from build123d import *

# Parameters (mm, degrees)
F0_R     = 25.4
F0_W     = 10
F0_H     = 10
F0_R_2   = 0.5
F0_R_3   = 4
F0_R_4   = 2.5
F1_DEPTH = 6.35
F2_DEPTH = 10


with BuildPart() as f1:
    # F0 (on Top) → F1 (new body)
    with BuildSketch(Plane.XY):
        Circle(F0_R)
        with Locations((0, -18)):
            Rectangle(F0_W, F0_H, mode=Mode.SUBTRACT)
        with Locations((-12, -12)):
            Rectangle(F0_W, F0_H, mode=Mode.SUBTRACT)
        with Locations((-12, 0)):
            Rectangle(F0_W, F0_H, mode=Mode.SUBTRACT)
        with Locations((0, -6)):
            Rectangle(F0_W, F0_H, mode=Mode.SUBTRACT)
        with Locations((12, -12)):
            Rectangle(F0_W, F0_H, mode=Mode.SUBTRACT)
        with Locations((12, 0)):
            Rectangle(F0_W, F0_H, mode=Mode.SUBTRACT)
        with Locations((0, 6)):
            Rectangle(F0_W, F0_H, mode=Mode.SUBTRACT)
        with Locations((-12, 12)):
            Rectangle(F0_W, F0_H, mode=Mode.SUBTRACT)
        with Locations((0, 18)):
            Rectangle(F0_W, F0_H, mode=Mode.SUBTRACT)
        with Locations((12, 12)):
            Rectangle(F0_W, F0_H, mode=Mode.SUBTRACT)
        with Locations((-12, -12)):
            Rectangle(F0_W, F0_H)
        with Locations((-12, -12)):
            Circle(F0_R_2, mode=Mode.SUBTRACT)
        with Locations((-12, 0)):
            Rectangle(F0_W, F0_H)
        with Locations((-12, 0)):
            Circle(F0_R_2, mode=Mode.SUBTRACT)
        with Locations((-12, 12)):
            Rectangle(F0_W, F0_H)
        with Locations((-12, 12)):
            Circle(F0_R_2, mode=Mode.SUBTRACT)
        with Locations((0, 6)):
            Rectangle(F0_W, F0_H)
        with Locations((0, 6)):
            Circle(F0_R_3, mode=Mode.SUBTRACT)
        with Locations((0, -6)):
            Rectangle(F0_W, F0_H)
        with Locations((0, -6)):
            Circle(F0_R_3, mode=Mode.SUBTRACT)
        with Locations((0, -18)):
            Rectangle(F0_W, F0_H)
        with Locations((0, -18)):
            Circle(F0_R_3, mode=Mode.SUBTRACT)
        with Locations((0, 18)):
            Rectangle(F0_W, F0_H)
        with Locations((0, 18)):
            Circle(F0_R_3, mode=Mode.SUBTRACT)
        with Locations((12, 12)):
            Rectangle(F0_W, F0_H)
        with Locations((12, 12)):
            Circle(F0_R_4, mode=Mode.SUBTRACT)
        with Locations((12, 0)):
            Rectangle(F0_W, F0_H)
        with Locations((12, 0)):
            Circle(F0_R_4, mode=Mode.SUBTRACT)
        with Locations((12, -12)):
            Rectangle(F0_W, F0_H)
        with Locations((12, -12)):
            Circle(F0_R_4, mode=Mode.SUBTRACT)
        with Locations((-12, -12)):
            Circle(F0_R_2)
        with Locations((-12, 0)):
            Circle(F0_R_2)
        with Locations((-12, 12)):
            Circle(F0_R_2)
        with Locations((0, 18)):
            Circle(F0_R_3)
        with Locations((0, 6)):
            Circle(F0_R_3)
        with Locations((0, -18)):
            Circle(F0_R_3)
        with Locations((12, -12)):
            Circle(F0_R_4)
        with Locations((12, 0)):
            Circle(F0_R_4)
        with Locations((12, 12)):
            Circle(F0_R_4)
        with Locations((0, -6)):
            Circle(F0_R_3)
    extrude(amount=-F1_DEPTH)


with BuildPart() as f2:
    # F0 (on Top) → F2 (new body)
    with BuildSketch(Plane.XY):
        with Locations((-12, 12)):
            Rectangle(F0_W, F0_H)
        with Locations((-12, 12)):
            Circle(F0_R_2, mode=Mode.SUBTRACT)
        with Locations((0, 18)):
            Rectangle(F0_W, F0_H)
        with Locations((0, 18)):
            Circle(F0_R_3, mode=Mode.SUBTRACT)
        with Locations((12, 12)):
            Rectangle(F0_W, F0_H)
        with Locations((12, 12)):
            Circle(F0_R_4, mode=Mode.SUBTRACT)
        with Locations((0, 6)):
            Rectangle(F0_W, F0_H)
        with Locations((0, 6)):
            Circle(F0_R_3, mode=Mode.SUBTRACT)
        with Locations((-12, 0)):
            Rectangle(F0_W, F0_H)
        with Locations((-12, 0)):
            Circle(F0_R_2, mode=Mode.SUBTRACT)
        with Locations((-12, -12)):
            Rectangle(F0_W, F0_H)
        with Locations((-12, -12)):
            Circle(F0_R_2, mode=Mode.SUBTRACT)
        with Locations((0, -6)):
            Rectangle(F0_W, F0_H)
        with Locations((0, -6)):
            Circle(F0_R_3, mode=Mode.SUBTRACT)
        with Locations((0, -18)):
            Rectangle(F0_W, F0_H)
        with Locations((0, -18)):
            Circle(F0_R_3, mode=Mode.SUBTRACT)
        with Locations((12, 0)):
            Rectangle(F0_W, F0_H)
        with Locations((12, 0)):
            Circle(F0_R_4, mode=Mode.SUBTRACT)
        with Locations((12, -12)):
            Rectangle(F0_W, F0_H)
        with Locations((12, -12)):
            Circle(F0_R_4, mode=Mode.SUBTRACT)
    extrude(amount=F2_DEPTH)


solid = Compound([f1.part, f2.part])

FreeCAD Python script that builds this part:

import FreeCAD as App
import Part
import Sketcher

V = App.Vector


def add_polygon(sketch, points):
    """Adds a closed chain of lines whose ends are joined by coincident constraints."""
    first, n = sketch.GeometryCount, len(points)
    for a, b in zip(points, points[1:] + points[:1]):
        sketch.addGeometry(Part.LineSegment(App.Vector(*a, 0), App.Vector(*b, 0)), False)
    for i in range(n):
        sketch.addConstraint(Sketcher.Constraint("Coincident", first + i, 2, first + (i + 1) % n, 1))

doc = App.newDocument("Part")
body = doc.addObject("PartDesign::Body", "Body")

sketch1 = doc.addObject("Sketcher::SketchObject", "Sketch")
body.addObject(sketch1)
sketch1.AttachmentSupport = (doc.XY_Plane, [""])
sketch1.MapMode = "FlatFace"
sketch1.addGeometry(Part.Circle(V(0, 0, 0), V(0, 0, 1), 25), False)
sketch1.addConstraint([
    Sketcher.Constraint("Coincident", 0, 3, -1, 1),
    Sketcher.Constraint("Diameter", 0, 50.8),
])
pad1 = doc.addObject("PartDesign::Pad", "Pad")
body.addObject(pad1)
pad1.Profile = sketch1
pad1.Length = 6.35
pad1.Reversed = True
body2 = doc.addObject("PartDesign::Body", "Body001")
body2.AllowCompound = True

sketch2 = doc.addObject("Sketcher::SketchObject", "Sketch001")
body2.addObject(sketch2)
sketch2.AttachmentSupport = (doc.getObject("XY_Plane001"), [""])
sketch2.MapMode = "FlatFace"
add_polygon(sketch2, [(-17, 17), (-17, 7), (-7, 7), (-7, 17)])
sketch2.addGeometry(Part.Circle(V(-12, 12, 0), V(0, 0, 1), 0.5), False)
add_polygon(sketch2, [(-5, 23), (-5, 13), (5, 13), (5, 23)])
sketch2.addGeometry(Part.Circle(V(0, 18, 0), V(0, 0, 1), 4), False)
add_polygon(sketch2, [(7, 17), (7, 7), (17, 7), (17, 17)])
sketch2.addGeometry(Part.Circle(V(12, 12, 0), V(0, 0, 1), 2.5), False)
add_polygon(sketch2, [(-5, 11), (-5, 1), (5, 1), (5, 11)])
sketch2.addGeometry(Part.Circle(V(0, 6, 0), V(0, 0, 1), 4), False)
add_polygon(sketch2, [(-17, 5), (-17, -5), (-7, -5), (-7, 5)])
sketch2.addGeometry(Part.Circle(V(-12, 0, 0), V(0, 0, 1), 0.5), False)
add_polygon(sketch2, [(-17, -7), (-17, -17), (-7, -17), (-7, -7)])
sketch2.addGeometry(Part.Circle(V(-12, -12, 0), V(0, 0, 1), 0.5), False)
add_polygon(sketch2, [(-5, -1), (-5, -11), (5, -11), (5, -1)])
sketch2.addGeometry(Part.Circle(V(0, -6, 0), V(0, 0, 1), 4), False)
add_polygon(sketch2, [(-5, -13), (-5, -23), (5, -23), (5, -13)])
sketch2.addGeometry(Part.Circle(V(0, -18, 0), V(0, 0, 1), 4), False)
add_polygon(sketch2, [(7, 5), (7, -5), (17, -5), (17, 5)])
sketch2.addGeometry(Part.Circle(V(12, 0, 0), V(0, 0, 1), 2.5), False)
add_polygon(sketch2, [(7, -7), (7, -17), (17, -17), (17, -7)])
sketch2.addGeometry(Part.Circle(V(12, -12, 0), V(0, 0, 1), 2.5), False)
sketch2.addConstraint([
    Sketcher.Constraint("Vertical", 0),
    Sketcher.Constraint("Horizontal", 1),
    Sketcher.Constraint("Vertical", 2),
    Sketcher.Constraint("Horizontal", 3),
    Sketcher.Constraint("Vertical", 5),
    Sketcher.Constraint("Horizontal", 6),
    Sketcher.Constraint("Vertical", 7),
    Sketcher.Constraint("Horizontal", 8),
    Sketcher.Constraint("Vertical", 10),
    Sketcher.Constraint("Horizontal", 11),
    Sketcher.Constraint("Vertical", 12),
    Sketcher.Constraint("Horizontal", 13),
    Sketcher.Constraint("Vertical", 15),
    Sketcher.Constraint("Horizontal", 16),
    Sketcher.Constraint("Vertical", 17),
    Sketcher.Constraint("Horizontal", 18),
    Sketcher.Constraint("Vertical", 20),
    Sketcher.Constraint("Horizontal", 21),
    Sketcher.Constraint("Vertical", 22),
    Sketcher.Constraint("Horizontal", 23),
    Sketcher.Constraint("Vertical", 25),
    Sketcher.Constraint("Horizontal", 26),
    Sketcher.Constraint("Vertical", 27),
    Sketcher.Constraint("Horizontal", 28),
    Sketcher.Constraint("Vertical", 30),
    Sketcher.Constraint("Horizontal", 31),
    Sketcher.Constraint("Vertical", 32),
    Sketcher.Constraint("Horizontal", 33),
    Sketcher.Constraint("Vertical", 35),
    Sketcher.Constraint("Horizontal", 36),
    Sketcher.Constraint("Vertical", 37),
    Sketcher.Constraint("Horizontal", 38),
    Sketcher.Constraint("Vertical", 40),
    Sketcher.Constraint("Horizontal", 41),
    Sketcher.Constraint("Vertical", 42),
    Sketcher.Constraint("Horizontal", 43),
    Sketcher.Constraint("Vertical", 45),
    Sketcher.Constraint("Horizontal", 46),
    Sketcher.Constraint("Vertical", 47),
    Sketcher.Constraint("Horizontal", 48),
    Sketcher.Constraint("Equal", 9, 19),
    Sketcher.Constraint("Equal", 4, 24),
    Sketcher.Constraint("Equal", 24, 29),
    Sketcher.Constraint("Equal", 19, 34),
    Sketcher.Constraint("Equal", 34, 39),
    Sketcher.Constraint("Equal", 14, 44),
    Sketcher.Constraint("Equal", 44, 49),
    Sketcher.Constraint("Symmetric", 14, 3, 29, 3, -1, 1),
    Sketcher.Constraint("Symmetric", 19, 3, 34, 3, -1, 1),
    Sketcher.Constraint("Symmetric", 9, 3, 39, 3, -1, 1),
    Sketcher.Constraint("Symmetric", 24, 3, 44, 3, -1, 1),
    Sketcher.Constraint("Symmetric", 4, 3, 49, 3, -1, 1),
    Sketcher.Constraint("Symmetric", 12, 2, 25, 2, -1, 1),
    Sketcher.Constraint("Symmetric", 10, 2, 27, 2, -1, 1),
    Sketcher.Constraint("Symmetric", 17, 2, 30, 2, -1, 1),
    Sketcher.Constraint("Symmetric", 15, 2, 32, 2, -1, 1),
    Sketcher.Constraint("Symmetric", 7, 2, 35, 2, -1, 1),
    Sketcher.Constraint("Symmetric", 5, 2, 37, 2, -1, 1),
    Sketcher.Constraint("Symmetric", 22, 2, 40, 2, -1, 1),
    Sketcher.Constraint("Symmetric", 20, 2, 42, 2, -1, 1),
    Sketcher.Constraint("Symmetric", 2, 2, 45, 2, -1, 1),
    Sketcher.Constraint("Symmetric", 0, 2, 47, 2, -1, 1),
    Sketcher.Constraint("Symmetric", 4, 3, 14, 3, -2),
    Sketcher.Constraint("Symmetric", 1, 2, 10, 2, -2),
    Sketcher.Constraint("Symmetric", 3, 2, 12, 2, -2),
    Sketcher.Constraint("PointOnObject", 9, 3, -2),
    Sketcher.Constraint("PointOnObject", 19, 3, -2),
    Sketcher.Constraint("PointOnObject", 24, 3, -1),
    Sketcher.Constraint("Horizontal", 21, 2, 40, 2),
    Sketcher.Constraint("Vertical", 4, 3, 24, 3),
    Sketcher.Constraint("Vertical", 8, 2, 15, 2),
    Sketcher.Constraint("Vertical", 7, 2, 16, 2),
    Sketcher.Constraint("Vertical", 3, 2, 20, 2),
    Sketcher.Constraint("Vertical", 2, 2, 21, 2),
    Sketcher.Constraint("Vertical", 18, 2, 30, 2),
    Sketcher.Constraint("Equal", 3, 6),
    Sketcher.Constraint("Equal", 48, 0),
    Sketcher.Constraint("Equal", 2, 5),
    Sketcher.Constraint("Equal", 12, 15),
    Sketcher.Constraint("Equal", 17, 20),
    Sketcher.Constraint("Diameter", 4, 1.0),
    Sketcher.Constraint("Diameter", 9, 8.0),
    Sketcher.Constraint("Diameter", 14, 5.0),
    Sketcher.Constraint("DistanceX", 1, 1, 1, 2, 10.0),
    Sketcher.Constraint("DistanceX", 4, 3, -1, 1, 12.0),
    Sketcher.Constraint("DistanceY", -1, 1, 4, 3, 12.0),
    Sketcher.Constraint("DistanceY", -1, 1, 9, 3, 18.0),
    Sketcher.Constraint("DistanceY", -1, 1, 19, 3, 6.0),
    Sketcher.Constraint("DistanceX", 0, 2, -1, 1, 17.0),
    Sketcher.Constraint("DistanceY", -1, 1, 0, 2, 7.0),
    Sketcher.Constraint("DistanceY", -1, 1, 5, 2, 13.0),
    Sketcher.Constraint("DistanceY", -1, 1, 15, 2, 1.0),
])
pad2 = doc.addObject("PartDesign::Pad", "Pad001")
body2.addObject(pad2)
pad2.Profile = sketch2
pad2.Length = 10

doc.recompute()
